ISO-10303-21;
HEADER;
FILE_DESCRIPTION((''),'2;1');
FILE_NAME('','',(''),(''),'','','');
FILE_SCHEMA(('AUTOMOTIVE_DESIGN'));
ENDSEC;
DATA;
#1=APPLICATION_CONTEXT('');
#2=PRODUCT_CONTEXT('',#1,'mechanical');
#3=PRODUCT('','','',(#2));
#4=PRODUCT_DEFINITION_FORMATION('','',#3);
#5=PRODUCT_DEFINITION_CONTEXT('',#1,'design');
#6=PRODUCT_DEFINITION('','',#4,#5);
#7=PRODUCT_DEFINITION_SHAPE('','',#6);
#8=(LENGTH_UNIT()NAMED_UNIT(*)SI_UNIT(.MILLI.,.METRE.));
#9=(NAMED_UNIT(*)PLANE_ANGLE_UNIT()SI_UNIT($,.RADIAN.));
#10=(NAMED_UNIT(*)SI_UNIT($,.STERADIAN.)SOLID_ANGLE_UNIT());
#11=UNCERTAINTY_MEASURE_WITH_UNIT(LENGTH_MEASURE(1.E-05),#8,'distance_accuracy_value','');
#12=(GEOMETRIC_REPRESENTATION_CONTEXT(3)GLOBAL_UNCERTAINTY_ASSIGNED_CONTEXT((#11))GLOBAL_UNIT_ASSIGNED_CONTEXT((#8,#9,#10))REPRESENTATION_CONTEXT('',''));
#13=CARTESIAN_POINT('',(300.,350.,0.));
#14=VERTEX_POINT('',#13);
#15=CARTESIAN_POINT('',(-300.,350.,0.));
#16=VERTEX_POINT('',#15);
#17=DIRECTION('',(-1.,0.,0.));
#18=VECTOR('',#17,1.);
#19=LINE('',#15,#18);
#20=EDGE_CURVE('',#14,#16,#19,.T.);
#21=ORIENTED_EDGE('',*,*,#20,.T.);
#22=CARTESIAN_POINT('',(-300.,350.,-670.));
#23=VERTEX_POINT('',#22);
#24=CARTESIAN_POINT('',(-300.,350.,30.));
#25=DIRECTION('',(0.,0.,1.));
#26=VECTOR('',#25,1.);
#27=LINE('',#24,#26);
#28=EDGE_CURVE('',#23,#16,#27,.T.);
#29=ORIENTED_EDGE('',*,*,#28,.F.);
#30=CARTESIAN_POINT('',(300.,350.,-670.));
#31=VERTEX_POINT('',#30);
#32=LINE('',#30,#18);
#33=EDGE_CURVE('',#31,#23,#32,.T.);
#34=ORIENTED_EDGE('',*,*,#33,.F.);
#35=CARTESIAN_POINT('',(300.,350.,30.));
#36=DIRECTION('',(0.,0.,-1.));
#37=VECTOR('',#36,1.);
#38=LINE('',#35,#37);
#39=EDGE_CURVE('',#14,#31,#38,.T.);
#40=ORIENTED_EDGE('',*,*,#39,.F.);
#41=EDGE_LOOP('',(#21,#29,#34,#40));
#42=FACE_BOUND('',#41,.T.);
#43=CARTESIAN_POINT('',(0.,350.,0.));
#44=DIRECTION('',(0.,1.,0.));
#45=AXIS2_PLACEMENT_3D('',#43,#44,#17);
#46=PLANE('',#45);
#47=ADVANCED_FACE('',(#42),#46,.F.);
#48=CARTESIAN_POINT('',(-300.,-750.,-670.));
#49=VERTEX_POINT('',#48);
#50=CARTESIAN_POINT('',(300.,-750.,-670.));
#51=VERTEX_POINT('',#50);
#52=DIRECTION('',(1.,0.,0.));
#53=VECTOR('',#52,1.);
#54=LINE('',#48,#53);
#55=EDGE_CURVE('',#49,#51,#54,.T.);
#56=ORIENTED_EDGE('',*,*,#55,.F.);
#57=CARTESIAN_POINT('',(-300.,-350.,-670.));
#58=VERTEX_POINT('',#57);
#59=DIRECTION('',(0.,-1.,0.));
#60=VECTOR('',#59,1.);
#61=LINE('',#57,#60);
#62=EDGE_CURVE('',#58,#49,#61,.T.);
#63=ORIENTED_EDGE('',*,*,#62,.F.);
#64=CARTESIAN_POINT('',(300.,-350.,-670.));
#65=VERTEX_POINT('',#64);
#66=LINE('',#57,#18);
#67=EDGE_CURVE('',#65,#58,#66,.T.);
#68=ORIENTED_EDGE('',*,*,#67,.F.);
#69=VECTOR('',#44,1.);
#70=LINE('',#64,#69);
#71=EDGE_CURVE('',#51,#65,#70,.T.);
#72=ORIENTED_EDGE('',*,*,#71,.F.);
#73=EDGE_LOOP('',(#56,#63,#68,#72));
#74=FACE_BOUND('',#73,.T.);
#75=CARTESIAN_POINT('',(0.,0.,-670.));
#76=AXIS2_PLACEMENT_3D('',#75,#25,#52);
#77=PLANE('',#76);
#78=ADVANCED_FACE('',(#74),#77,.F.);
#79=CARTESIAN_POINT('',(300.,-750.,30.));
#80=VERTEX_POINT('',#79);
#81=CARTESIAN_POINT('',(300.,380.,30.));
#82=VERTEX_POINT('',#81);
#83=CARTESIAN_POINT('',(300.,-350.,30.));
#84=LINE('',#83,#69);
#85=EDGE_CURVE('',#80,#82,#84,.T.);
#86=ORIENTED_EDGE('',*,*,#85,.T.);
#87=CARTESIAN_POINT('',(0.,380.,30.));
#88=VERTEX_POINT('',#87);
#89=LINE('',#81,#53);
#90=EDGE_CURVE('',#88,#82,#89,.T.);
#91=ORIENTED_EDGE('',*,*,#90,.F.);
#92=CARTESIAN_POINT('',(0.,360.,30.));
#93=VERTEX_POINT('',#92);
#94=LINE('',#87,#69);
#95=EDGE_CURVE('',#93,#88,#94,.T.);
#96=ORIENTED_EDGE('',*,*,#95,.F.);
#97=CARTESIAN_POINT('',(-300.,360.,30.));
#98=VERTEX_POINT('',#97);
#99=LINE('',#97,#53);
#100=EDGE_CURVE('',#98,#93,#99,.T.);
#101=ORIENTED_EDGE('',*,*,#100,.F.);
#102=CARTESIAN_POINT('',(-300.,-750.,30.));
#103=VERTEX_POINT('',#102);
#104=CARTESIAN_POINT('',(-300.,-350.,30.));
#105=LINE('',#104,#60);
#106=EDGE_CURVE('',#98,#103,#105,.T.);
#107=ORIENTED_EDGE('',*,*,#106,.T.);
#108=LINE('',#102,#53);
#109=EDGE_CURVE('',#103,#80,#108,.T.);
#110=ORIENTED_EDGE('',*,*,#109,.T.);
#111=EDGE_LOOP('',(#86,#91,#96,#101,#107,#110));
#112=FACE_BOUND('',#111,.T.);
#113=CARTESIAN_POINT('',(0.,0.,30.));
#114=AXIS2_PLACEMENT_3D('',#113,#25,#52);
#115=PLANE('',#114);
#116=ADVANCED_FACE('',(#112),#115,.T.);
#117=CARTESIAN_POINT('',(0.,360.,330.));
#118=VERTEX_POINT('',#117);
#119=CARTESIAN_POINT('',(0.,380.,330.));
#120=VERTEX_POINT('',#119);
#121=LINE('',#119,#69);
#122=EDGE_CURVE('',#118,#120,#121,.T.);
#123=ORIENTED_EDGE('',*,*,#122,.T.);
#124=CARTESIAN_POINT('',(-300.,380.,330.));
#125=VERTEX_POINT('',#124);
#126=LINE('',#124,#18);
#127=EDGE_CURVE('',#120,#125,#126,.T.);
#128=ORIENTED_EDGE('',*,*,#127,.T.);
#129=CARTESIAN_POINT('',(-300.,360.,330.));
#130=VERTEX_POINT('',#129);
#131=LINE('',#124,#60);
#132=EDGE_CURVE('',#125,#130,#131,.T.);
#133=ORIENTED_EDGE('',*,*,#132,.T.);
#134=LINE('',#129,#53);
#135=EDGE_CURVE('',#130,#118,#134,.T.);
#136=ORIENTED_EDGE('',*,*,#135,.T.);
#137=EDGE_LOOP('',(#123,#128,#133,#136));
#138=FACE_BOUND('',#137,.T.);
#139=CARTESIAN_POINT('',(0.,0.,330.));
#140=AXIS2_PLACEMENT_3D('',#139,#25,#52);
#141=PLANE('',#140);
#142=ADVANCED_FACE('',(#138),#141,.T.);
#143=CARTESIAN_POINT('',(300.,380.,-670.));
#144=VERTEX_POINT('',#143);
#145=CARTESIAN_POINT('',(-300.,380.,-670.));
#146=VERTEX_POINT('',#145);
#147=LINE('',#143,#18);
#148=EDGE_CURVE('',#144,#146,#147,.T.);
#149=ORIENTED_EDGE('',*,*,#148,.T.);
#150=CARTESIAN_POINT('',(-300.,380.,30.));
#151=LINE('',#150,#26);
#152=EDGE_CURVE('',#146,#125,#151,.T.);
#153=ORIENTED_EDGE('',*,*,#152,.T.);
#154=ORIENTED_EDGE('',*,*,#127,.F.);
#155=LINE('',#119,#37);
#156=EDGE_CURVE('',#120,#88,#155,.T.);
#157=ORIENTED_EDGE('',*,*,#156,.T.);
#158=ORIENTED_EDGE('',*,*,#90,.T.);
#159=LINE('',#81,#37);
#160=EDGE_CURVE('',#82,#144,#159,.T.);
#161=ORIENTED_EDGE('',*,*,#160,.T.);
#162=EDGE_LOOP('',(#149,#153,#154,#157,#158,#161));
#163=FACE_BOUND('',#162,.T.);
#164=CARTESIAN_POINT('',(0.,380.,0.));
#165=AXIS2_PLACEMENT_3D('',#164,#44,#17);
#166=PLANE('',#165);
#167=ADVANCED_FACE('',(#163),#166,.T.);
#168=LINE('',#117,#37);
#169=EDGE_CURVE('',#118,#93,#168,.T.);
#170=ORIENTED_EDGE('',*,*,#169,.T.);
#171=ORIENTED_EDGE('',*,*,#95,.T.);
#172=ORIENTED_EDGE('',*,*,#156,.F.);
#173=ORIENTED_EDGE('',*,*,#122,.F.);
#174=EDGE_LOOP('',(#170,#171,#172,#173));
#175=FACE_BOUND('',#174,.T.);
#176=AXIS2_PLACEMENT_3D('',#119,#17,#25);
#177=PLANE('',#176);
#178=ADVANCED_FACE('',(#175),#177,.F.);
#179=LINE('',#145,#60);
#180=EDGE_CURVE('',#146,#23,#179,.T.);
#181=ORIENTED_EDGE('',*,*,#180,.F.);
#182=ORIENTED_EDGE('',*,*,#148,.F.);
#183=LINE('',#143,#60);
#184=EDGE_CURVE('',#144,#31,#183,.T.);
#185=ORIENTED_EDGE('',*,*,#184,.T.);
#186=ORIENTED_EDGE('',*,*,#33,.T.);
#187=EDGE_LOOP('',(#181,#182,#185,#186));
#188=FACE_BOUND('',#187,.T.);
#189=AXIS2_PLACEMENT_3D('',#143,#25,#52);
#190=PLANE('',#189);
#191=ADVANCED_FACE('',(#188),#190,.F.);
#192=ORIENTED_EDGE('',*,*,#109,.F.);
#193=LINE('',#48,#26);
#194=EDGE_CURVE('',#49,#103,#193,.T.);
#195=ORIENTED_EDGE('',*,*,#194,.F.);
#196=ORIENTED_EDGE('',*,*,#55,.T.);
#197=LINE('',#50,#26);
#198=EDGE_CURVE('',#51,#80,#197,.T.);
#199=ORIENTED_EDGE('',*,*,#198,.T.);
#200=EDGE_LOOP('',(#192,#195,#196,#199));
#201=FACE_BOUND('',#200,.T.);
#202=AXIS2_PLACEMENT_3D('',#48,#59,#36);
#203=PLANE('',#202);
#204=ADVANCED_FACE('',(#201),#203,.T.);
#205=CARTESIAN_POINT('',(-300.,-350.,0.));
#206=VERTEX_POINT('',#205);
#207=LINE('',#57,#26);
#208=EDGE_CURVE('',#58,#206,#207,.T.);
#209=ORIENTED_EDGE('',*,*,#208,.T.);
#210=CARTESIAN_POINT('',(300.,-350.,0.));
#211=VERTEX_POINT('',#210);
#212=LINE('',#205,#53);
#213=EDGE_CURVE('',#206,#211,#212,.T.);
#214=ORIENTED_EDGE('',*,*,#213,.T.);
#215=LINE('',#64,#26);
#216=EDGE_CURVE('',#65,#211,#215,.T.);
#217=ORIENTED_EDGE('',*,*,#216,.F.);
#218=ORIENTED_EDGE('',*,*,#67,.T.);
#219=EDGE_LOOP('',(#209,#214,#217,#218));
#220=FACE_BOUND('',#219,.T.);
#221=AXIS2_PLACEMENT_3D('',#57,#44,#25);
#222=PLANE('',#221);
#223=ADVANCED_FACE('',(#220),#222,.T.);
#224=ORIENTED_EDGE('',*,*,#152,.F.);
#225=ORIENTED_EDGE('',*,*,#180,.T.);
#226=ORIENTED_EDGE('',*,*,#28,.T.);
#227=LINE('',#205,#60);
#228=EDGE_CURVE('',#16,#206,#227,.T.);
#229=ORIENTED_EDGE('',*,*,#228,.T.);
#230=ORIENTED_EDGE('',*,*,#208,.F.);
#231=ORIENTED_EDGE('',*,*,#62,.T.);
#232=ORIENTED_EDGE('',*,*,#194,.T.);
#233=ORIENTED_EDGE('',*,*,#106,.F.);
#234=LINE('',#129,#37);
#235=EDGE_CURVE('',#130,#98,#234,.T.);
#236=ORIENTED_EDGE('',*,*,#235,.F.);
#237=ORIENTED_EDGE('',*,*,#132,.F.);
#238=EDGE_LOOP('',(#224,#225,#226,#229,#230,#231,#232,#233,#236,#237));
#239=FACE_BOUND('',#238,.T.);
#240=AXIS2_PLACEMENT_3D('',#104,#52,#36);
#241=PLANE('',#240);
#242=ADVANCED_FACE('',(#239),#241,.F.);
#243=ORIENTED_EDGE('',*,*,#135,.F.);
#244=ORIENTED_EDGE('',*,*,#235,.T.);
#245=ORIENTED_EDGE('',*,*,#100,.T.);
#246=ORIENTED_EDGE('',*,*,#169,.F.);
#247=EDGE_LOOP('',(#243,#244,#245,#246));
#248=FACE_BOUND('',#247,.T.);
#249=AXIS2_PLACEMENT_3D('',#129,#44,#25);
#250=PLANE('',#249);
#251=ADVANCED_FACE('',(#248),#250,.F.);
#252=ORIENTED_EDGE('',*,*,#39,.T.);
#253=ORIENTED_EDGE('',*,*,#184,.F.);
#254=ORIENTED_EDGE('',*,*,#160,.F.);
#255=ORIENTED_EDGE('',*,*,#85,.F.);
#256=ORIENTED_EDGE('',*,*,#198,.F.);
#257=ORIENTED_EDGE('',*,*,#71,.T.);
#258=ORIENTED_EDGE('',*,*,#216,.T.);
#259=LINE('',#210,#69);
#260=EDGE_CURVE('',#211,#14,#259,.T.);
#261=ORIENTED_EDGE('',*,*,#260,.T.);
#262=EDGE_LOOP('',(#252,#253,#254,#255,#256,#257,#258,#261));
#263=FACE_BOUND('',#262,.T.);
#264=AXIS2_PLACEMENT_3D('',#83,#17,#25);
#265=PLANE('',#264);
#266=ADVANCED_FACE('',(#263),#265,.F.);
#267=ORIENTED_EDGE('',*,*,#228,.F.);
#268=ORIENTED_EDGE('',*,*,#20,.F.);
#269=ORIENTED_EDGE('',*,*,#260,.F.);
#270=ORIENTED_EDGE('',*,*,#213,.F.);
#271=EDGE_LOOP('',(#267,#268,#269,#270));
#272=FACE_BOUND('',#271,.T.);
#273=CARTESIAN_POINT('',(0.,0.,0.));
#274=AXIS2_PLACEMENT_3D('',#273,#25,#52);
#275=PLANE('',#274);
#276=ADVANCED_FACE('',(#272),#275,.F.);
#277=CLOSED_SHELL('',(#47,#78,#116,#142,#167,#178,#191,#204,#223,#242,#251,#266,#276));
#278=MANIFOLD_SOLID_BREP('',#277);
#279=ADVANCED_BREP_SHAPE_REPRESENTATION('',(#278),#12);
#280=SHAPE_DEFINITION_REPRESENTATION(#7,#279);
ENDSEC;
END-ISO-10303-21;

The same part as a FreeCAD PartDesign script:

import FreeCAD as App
import Part
import Sketcher
from FreeCAD import Vector
Q = App.Units.Quantity


def add_polygon(sketch, points):
    """Adds a closed chain of lines whose ends are joined by coincident constraints."""
    first, n = sketch.GeometryCount, len(points)
    for a, b in zip(points, points[1:] + points[:1]):
        sketch.addGeometry(Part.LineSegment(App.Vector(*a, 0), App.Vector(*b, 0)), False)
    for i in range(n):
        sketch.addConstraint(Sketcher.Constraint("Coincident", first + i, 2, first + (i + 1) % n, 1))

doc = App.newDocument("Part")
body = doc.addObject("PartDesign::Body", "Body")

sketch1 = body.newObject("Sketcher::SketchObject", "Sketch")
sketch1.AttachmentSupport = (doc.getObject("XY_Plane"), [""])
sketch1.MapMode = "FlatFace"
add_polygon(sketch1, [(-300, -350), (300, -350), (300, 350), (-300, 350)])
sketch1.addConstraint([
    Sketcher.Constraint("Horizontal", 0),
    Sketcher.Constraint("Vertical", 1),
    Sketcher.Constraint("Horizontal", 2),
    Sketcher.Constraint("Vertical", 3),
    Sketcher.Constraint("Symmetric", 0, 2, 2, 2, -1, 1),
    Sketcher.Constraint("DistanceX", 0, 1, 0, 2, Q("600 mm")),
    Sketcher.Constraint("DistanceY", 1, 1, 1, 2, Q("700 mm")),
])
pad1 = body.newObject("PartDesign::Pad", "Pad")
pad1.Profile = sketch1
pad1.Length = 30

sketch2 = body.newObject("Sketcher::SketchObject", "Sketch001")
sketch2.AttachmentSupport = (doc.getObject("XZ_Plane"), [""])
sketch2.MapMode = "FlatFace"
sketch2.AttachmentOffset = App.Placement(Vector(0, 0, -350), App.Rotation())
add_polygon(sketch2, [(300, 30), (300, -670), (-300, -670), (-300, 30)])
sketch2.addConstraint([
    Sketcher.Constraint("Vertical", 0),
    Sketcher.Constraint("Horizontal", 1),
    Sketcher.Constraint("Vertical", 2),
    Sketcher.Constraint("Horizontal", 3),
    Sketcher.Constraint("DistanceX", 1, 2, 1, 1, Q("600 mm")),
    Sketcher.Constraint("DistanceY", 0, 2, 0, 1, Q("700 mm")),
    Sketcher.Constraint("DistanceX", -1, 1, 0, 2, Q("300 mm")),
    Sketcher.Constraint("DistanceY", 0, 2, -1, 1, Q("670 mm")),
])
pad2 = body.newObject("PartDesign::Pad", "Pad001")
pad2.Profile = sketch2
pad2.Length = 30
pad2.Reversed = True

sketch3 = body.newObject("Sketcher::SketchObject", "Sketch002")
sketch3.AttachmentSupport = (doc.getObject("XY_Plane"), [""])
sketch3.MapMode = "FlatFace"
sketch3.AttachmentOffset = App.Placement(Vector(0, 0, 30), App.Rotation())
add_polygon(sketch3, [(-300, -350), (-300, -750), (300, -750), (300, -350)])
sketch3.addConstraint([
    Sketcher.Constraint("Vertical", 0),
    Sketcher.Constraint("Horizontal", 1),
    Sketcher.Constraint("Vertical", 2),
    Sketcher.Constraint("Horizontal", 3),
    Sketcher.Constraint("DistanceX", 1, 1, 1, 2, Q("600 mm")),
    Sketcher.Constraint("DistanceY", 0, 2, 0, 1, Q("400 mm")),
    Sketcher.Constraint("DistanceX", 0, 2, -1, 1, Q("300 mm")),
    Sketcher.Constraint("DistanceY", 0, 2, -1, 1, Q("750 mm")),
])
pad3 = body.newObject("PartDesign::Pad", "Pad002")
pad3.Profile = sketch3
pad3.Length = 700
pad3.Reversed = True

sketch4 = body.newObject("Sketcher::SketchObject", "Sketch003")
sketch4.AttachmentSupport = (doc.getObject("XY_Plane"), [""])
sketch4.MapMode = "FlatFace"
sketch4.AttachmentOffset = App.Placement(Vector(0, 0, 30), App.Rotation())
add_polygon(sketch4, [(-300, 380), (-300, 360), (0, 360), (0, 380)])
sketch4.addConstraint([
    Sketcher.Constraint("Vertical", 0),
    Sketcher.Constraint("Horizontal", 1),
    Sketcher.Constraint("Vertical", 2),
    Sketcher.Constraint("Horizontal", 3),
    Sketcher.Constraint("PointOnObject", 1, 2, -2),
    Sketcher.Constraint("DistanceX", 1, 1, 1, 2, Q("300 mm")),
    Sketcher.Constraint("DistanceY", 0, 2, 0, 1, Q("20 mm")),
    Sketcher.Constraint("DistanceY", -1, 1, 0, 2, Q("360 mm")),
])
pad4 = body.newObject("PartDesign::Pad", "Pad003")
pad4.Profile = sketch4
pad4.Length = 300

doc.recompute()
